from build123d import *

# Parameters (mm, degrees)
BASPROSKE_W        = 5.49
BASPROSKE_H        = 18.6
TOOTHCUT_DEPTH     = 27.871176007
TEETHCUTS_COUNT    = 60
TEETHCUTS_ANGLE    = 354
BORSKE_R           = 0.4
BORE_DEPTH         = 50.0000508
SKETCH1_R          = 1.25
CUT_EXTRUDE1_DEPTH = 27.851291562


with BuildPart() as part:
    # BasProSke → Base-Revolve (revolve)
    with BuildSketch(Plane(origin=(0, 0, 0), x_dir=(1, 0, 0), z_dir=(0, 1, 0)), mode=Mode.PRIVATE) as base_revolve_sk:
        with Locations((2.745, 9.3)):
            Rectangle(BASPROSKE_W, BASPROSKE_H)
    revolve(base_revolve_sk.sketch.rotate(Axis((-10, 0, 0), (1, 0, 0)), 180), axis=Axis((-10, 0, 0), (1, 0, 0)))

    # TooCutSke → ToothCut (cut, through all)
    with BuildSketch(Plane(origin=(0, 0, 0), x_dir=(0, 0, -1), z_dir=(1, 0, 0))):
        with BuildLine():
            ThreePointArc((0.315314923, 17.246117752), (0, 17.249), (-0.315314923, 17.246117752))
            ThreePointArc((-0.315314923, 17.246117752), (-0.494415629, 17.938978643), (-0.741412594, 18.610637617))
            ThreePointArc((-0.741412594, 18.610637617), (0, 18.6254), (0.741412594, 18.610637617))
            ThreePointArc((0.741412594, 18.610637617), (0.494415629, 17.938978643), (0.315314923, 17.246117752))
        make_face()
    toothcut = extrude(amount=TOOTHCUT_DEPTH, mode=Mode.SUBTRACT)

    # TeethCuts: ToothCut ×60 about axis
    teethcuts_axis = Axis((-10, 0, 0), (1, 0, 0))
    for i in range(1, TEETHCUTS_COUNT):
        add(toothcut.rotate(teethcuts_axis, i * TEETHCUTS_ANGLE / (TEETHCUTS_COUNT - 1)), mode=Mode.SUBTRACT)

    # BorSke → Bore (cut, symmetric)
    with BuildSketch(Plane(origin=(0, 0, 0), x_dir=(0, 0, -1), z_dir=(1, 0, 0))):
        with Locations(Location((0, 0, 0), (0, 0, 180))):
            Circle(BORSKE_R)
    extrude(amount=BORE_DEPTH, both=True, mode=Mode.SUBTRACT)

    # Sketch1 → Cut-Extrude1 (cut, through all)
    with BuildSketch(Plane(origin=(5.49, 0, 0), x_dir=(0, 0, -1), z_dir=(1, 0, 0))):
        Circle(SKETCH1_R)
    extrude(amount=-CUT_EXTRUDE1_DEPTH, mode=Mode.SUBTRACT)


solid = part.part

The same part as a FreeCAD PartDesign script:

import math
import FreeCAD as App
import Part
import Sketcher
from FreeCAD import Vector


def add_polygon(sketch, points):
    """Adds a closed chain of lines whose ends are joined by coincident constraints."""
    first, n = sketch.GeometryCount, len(points)
    for a, b in zip(points, points[1:] + points[:1]):
        sketch.addGeometry(Part.LineSegment(App.Vector(*a, 0), App.Vector(*b, 0)), False)
    for i in range(n):
        sketch.addConstraint(Sketcher.Constraint("Coincident", first + i, 2, first + (i + 1) % n, 1))

doc = App.newDocument("Part")
params = doc.addObject("Spreadsheet::Sheet", "Params")
for row, (alias, value) in enumerate([
    ("sketch1_height", "18.6 mm"),
    ("sketch1_width", "5.49 mm"),
    ("revolution_angle", "360 deg"),
    ("sketch2_radius", "7.2 mm"),
    ("sketch3_diameter", "0.8 mm"),
    ("pocket2_length", "100.000102 mm"),
    ("sketch4_diameter", "2.5 mm"),
], start=1):
    params.set(f"A{row}", alias)
    params.set(f"B{row}", "=" + value)
    params.setAlias(f"B{row}", alias)

body = doc.addObject("PartDesign::Body", "Body")

# Sketch on XZ plane
sketch1 = body.newObject("Sketcher::SketchObject", "Sketch")
sketch1.AttachmentSupport = (doc.getObject("XZ_Plane"), [""])
sketch1.MapMode = "FlatFace"
add_polygon(sketch1, [(0, -18.6), (0, 0), (5.49, 0), (5.49, -18.6)])  # lines 0-3
sketch1.addConstraint([
    Sketcher.Constraint("Vertical", 0),
    Sketcher.Constraint("Horizontal", 1),
    Sketcher.Constraint("Vertical", 2),
    Sketcher.Constraint("Horizontal", 3),
    Sketcher.Constraint("Coincident", 0, 2, -1, 1),
    Sketcher.Constraint("DistanceY", 0, 1, 0, 2, 18.6),
    Sketcher.Constraint("DistanceX", 1, 1, 1, 2, 5.49),
])
sketch1.setExpression("Constraints[9]", "Params.sketch1_height")
sketch1.setExpression("Constraints[10]", "Params.sketch1_width")
revolution = body.newObject("PartDesign::Revolution", "Revolution")
revolution.Profile = sketch1
revolution.ReferenceAxis = (sketch1, ["H_Axis"])
revolution.setExpression("Angle", "Params.revolution_angle")

# Sketch on YZ plane
sketch2 = body.newObject("Sketcher::SketchObject", "Sketch001")
sketch2.AttachmentSupport = (doc.getObject("YZ_Plane"), [""])
sketch2.MapMode = "FlatFace"
sketch2.addGeometry([
    Part.ArcOfCircle(Part.Circle(Vector(-0.000003, 0, 0), Vector(0, 0, 1), 17.249003), math.radians(-1.047436), math.radians(1.047436)),
    Part.ArcOfCircle(Part.Circle(Vector(15.792843, -7.367123, 0), Vector(0, 0, 1), 7.2), math.radians(66.96083), math.radians(78.355206)),
    Part.ArcOfCircle(Part.Circle(Vector(0, 0, 0), Vector(0, 0, 1), 18.6254), math.radians(-2.281349), math.radians(2.281349)),
    Part.ArcOfCircle(Part.Circle(Vector(15.792843, 7.367123, 0), Vector(0, 0, 1), 7.2), math.radians(-78.355206), math.radians(-66.96083)),
], False)
sketch2.addConstraint([
    Sketcher.Constraint("Coincident", 0, 1, 1, 2),
    Sketcher.Constraint("Coincident", 1, 1, 2, 1),
    Sketcher.Constraint("Coincident", 2, 2, 3, 2),
    Sketcher.Constraint("Coincident", 3, 1, 0, 2),
    Sketcher.Constraint("Coincident", 0, 3, -1, 1),
    Sketcher.Constraint("Coincident", 2, 3, -1, 1),
    Sketcher.Constraint("Equal", 1, 3),
    Sketcher.Constraint("Symmetric", 1, 3, 3, 3, -1),
    Sketcher.Constraint("Radius", 1, 7.2),
    Sketcher.Constraint("Radius", 2, 18.6254),
    Sketcher.Constraint("Radius", 0, 17.249003),
    Sketcher.Constraint("DistanceX", 0, 3, 0, 1, 17.246121),
    Sketcher.Constraint("DistanceY", 1, 3, 1, 1, 6.62571),
])
sketch2.setExpression("Constraints[8]", "Params.sketch2_radius")
pocket1 = body.newObject("PartDesign::Pocket", "Pocket")
pocket1.Profile = sketch2
pocket1.Type = "ThroughAll"
pocket1.Reversed = True
doc.recompute()

polarpattern = body.newObject("PartDesign::PolarPattern", "PolarPattern")
polarpattern.Originals = [pocket1]
polarpattern.Axis = (doc.getObject("X_Axis"), [""])
polarpattern.Angle = 360
polarpattern.Occurrences = 60
body.Tip = polarpattern

# Sketch on YZ plane
sketch3 = body.newObject("Sketcher::SketchObject", "Sketch002")
sketch3.AttachmentSupport = (doc.getObject("YZ_Plane"), [""])
sketch3.MapMode = "FlatFace"
sketch3.addGeometry(Part.Circle(Vector(0, 0, 0), Vector(0, 0, 1), 0.4), False)
sketch3.addConstraint([
    Sketcher.Constraint("Coincident", 0, 3, -1, 1),
    Sketcher.Constraint("Diameter", 0, 0.8),
])
sketch3.setExpression("Constraints[1]", "Params.sketch3_diameter")
pocket2 = body.newObject("PartDesign::Pocket", "Pocket001")
pocket2.Profile = sketch3
pocket2.setExpression("Length", "Params.pocket2_length")
pocket2.Midplane = True

# Sketch on YZ plane
sketch4 = body.newObject("Sketcher::SketchObject", "Sketch003")
sketch4.AttachmentSupport = (doc.getObject("YZ_Plane"), [""])
sketch4.MapMode = "FlatFace"
sketch4.AttachmentOffset = App.Placement(Vector(0, 0, 5.49), App.Rotation())
sketch4.addGeometry(Part.Circle(Vector(0, 0, 0), Vector(0, 0, 1), 1.25), False)
sketch4.addConstraint([
    Sketcher.Constraint("Coincident", 0, 3, -1, 1),
    Sketcher.Constraint("Diameter", 0, 2.5),
])
sketch4.setExpression("Constraints[1]", "Params.sketch4_diameter")
pocket3 = body.newObject("PartDesign::Pocket", "Pocket002")
pocket3.Profile = sketch4
pocket3.Type = "ThroughAll"

doc.recompute()
